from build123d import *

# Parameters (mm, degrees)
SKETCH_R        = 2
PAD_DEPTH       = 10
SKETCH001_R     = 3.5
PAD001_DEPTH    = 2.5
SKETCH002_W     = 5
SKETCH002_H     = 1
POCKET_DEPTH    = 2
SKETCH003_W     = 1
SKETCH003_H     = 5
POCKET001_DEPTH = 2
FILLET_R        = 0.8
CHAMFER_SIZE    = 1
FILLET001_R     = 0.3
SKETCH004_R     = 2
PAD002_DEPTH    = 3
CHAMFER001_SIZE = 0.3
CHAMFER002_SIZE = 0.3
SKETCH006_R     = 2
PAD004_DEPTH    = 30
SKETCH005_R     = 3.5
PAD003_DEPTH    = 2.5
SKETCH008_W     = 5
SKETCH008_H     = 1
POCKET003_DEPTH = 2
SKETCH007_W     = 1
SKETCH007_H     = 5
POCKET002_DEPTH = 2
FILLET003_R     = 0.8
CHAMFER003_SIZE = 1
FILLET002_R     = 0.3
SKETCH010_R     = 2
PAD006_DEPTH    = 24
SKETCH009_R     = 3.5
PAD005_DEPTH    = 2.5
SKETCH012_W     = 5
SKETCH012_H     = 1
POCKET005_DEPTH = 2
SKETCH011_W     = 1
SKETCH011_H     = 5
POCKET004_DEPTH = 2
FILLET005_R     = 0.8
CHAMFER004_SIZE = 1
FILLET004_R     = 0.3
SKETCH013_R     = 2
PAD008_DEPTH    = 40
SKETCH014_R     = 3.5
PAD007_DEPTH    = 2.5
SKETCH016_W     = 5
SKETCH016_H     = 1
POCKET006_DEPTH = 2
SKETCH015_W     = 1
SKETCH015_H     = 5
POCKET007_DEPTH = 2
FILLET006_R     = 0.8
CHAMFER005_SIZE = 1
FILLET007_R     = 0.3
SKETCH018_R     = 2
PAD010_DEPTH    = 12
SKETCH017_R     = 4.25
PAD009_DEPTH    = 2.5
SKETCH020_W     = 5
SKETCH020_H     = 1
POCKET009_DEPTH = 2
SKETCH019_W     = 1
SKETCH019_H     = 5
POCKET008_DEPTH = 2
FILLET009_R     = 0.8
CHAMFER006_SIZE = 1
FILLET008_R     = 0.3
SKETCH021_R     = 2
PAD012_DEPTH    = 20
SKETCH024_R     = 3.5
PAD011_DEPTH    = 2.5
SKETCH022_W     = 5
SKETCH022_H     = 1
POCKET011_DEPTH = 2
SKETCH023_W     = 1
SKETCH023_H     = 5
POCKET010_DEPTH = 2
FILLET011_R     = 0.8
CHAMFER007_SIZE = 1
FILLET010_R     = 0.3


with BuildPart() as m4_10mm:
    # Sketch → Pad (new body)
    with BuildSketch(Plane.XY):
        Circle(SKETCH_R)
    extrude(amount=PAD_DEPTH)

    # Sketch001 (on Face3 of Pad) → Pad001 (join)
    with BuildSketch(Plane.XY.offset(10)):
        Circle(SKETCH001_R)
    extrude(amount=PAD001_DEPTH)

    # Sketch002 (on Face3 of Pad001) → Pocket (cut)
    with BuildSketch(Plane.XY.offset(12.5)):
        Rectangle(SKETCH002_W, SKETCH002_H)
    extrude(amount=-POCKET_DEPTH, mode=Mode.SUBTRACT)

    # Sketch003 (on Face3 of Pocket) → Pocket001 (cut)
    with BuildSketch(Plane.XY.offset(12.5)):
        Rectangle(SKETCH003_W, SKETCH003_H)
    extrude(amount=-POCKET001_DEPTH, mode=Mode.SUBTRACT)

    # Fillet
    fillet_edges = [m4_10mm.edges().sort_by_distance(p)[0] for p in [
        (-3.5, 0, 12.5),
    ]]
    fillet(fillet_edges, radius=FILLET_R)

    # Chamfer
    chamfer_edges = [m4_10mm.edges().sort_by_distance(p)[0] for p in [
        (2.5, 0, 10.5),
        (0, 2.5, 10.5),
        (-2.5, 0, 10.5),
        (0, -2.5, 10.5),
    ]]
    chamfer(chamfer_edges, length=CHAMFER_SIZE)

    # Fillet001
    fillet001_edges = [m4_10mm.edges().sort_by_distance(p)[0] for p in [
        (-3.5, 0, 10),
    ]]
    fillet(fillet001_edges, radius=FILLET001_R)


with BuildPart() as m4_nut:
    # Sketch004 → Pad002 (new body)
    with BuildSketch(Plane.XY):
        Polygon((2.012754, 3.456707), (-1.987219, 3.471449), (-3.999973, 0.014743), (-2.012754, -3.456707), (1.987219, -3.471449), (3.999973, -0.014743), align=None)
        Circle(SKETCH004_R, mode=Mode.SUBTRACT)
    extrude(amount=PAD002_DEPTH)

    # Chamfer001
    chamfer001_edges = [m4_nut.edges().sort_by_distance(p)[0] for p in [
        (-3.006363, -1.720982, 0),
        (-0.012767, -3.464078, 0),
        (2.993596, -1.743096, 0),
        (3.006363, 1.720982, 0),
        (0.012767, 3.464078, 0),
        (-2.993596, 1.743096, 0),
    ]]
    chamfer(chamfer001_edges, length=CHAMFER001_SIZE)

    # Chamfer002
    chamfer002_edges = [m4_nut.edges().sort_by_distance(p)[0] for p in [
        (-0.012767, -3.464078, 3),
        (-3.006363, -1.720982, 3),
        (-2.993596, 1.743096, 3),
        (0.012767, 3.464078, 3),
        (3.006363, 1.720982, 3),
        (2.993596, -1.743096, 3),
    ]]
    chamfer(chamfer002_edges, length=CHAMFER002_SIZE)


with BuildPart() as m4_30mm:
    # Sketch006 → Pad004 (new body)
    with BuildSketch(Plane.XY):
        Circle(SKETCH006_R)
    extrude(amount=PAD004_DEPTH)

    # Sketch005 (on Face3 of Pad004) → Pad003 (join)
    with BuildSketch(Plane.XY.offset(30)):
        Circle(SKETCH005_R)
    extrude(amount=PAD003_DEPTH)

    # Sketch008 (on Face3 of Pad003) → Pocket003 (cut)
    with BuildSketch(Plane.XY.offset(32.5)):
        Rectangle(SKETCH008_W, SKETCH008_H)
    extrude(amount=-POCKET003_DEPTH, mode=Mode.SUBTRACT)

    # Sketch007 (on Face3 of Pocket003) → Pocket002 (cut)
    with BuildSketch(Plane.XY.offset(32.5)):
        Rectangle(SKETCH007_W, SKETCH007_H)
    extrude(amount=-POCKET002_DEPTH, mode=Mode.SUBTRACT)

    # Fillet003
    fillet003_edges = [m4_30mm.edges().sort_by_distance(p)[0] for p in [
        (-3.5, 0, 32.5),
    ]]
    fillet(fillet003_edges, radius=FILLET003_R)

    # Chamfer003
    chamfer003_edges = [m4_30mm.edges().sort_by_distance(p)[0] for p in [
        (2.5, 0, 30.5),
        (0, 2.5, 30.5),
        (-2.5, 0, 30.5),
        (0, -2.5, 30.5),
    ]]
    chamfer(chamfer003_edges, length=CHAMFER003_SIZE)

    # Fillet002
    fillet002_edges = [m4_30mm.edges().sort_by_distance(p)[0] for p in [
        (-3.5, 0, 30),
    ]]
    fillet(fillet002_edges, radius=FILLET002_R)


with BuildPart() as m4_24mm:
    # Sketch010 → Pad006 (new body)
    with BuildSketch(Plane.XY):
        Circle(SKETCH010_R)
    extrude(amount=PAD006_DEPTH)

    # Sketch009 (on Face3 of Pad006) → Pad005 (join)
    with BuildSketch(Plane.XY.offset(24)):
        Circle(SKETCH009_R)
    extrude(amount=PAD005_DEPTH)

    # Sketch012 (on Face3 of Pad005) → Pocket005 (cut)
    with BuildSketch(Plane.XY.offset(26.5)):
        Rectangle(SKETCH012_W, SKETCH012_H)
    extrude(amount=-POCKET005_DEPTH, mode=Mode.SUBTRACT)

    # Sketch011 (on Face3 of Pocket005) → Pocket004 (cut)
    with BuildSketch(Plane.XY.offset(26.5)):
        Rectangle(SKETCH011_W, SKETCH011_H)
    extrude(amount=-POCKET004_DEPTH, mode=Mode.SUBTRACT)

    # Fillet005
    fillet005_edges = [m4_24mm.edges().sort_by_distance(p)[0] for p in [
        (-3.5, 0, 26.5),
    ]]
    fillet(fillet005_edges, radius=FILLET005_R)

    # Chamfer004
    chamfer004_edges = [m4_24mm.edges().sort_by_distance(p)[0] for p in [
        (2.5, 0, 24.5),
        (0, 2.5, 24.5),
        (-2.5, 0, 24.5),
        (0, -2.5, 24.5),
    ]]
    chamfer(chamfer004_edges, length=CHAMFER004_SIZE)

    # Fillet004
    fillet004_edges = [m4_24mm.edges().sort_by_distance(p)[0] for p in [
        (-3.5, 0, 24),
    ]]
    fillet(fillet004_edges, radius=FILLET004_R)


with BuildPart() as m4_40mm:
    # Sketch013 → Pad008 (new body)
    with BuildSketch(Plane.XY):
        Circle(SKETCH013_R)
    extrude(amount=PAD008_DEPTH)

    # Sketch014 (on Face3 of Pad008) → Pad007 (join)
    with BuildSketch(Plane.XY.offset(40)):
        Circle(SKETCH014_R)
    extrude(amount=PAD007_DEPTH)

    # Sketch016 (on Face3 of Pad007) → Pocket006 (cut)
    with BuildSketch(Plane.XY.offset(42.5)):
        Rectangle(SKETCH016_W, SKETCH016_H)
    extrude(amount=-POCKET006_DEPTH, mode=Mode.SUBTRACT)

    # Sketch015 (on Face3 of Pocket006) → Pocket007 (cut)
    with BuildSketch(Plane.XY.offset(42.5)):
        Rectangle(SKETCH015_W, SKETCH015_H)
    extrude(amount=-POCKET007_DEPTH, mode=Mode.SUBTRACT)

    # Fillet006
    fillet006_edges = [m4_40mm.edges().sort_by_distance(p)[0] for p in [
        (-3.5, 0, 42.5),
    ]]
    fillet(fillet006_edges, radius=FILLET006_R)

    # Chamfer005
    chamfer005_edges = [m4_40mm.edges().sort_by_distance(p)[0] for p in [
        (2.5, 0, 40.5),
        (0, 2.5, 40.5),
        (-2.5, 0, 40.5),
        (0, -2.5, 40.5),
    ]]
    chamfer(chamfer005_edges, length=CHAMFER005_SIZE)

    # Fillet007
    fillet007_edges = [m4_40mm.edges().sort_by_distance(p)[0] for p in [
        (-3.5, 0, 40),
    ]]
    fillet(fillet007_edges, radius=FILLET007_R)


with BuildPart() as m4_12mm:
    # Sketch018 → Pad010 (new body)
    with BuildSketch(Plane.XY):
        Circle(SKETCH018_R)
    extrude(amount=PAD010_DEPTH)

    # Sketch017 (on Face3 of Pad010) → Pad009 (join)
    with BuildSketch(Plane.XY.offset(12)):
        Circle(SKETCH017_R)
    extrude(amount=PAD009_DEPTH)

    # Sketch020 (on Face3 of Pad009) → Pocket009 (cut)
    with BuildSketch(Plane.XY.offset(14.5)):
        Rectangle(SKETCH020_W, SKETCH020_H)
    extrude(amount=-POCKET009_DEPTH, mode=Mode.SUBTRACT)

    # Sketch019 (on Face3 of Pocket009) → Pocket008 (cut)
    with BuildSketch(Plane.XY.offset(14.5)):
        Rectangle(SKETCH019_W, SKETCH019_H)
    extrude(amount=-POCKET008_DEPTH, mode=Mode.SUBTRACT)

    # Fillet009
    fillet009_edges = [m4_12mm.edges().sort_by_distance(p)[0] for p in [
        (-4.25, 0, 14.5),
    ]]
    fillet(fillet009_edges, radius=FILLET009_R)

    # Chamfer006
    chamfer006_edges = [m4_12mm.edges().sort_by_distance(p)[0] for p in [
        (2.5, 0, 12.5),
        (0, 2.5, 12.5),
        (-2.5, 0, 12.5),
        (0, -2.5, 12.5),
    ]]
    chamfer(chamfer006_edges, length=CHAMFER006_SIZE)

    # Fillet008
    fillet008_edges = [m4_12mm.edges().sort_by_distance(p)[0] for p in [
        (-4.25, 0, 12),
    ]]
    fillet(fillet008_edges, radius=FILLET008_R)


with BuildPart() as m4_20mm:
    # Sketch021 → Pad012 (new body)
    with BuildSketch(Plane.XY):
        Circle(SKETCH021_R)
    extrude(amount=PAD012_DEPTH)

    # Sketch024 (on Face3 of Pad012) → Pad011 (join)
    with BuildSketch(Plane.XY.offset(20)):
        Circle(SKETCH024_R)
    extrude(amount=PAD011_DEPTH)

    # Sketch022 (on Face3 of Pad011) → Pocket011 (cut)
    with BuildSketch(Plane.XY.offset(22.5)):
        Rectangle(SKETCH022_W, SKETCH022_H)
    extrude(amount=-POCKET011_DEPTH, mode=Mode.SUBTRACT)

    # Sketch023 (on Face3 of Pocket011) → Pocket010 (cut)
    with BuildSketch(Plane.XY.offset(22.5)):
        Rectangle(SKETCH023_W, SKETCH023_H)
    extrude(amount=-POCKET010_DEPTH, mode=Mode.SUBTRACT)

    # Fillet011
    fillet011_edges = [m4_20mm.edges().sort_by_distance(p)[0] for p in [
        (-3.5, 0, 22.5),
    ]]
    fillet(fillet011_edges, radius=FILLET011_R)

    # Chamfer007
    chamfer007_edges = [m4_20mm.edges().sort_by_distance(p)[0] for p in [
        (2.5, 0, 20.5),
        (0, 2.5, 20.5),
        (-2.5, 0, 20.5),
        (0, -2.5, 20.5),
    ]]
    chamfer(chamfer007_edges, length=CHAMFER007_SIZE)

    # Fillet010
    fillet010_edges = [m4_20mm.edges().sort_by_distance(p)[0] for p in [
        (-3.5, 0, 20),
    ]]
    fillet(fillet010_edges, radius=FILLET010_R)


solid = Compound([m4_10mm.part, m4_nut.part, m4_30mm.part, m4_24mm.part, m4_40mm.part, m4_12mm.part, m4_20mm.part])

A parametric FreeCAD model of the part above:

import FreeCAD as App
import Part
import Sketcher
Q = App.Units.Quantity


def edges_at(feature, points):
    """Names of the edges that pass closest to the given points."""
    edges = feature.Shape.Edges
    near = lambda p: min(range(len(edges)), key=lambda i: edges[i].distToShape(Part.Vertex(*p))[0])
    return sorted({f"Edge{near(p) + 1}" for p in points})

doc = App.newDocument("Part")
body = doc.addObject("PartDesign::Body", "Body")

sketch1 = doc.addObject("Sketcher::SketchObject", "Sketch")
body.addObject(sketch1)
sketch1.AttachmentSupport = (doc.XY_Plane, [""])
sketch1.MapMode = "FlatFace"
sketch1.addGeometry(Part.Circle(App.Vector(0, 0, 0), App.Vector(0, 0, 1), 2), False)
sketch1.addConstraint(Sketcher.Constraint("Coincident", 0, 3, -1, 1))
sketch1.addConstraint(Sketcher.Constraint("Diameter", 0, Q("4 mm")))
pad1 = doc.addObject("PartDesign::Pad", "Pad")
body.addObject(pad1)
pad1.Profile = sketch1
pad1.Length = 10

sketch2 = doc.addObject("Sketcher::SketchObject", "Sketch001")
body.addObject(sketch2)
sketch2.AttachmentSupport = (doc.XY_Plane, [""])
sketch2.MapMode = "FlatFace"
sketch2.AttachmentOffset = App.Placement(App.Vector(0, 0, 10), App.Rotation())
sketch2.addGeometry(Part.Circle(App.Vector(0, 0, 0), App.Vector(0, 0, 1), 3.5), False)
sketch2.addConstraint(Sketcher.Constraint("Coincident", 0, 3, -1, 1))
sketch2.addConstraint(Sketcher.Constraint("Diameter", 0, Q("7 mm")))
pad2 = doc.addObject("PartDesign::Pad", "Pad001")
body.addObject(pad2)
pad2.Profile = sketch2
pad2.Length = 2.5

sketch3 = doc.addObject("Sketcher::SketchObject", "Sketch002")
body.addObject(sketch3)
sketch3.AttachmentSupport = (doc.XY_Plane, [""])
sketch3.MapMode = "FlatFace"
sketch3.AttachmentOffset = App.Placement(App.Vector(0, 0, 12.5), App.Rotation())
sketch3.addGeometry(Part.LineSegment(App.Vector(-2.5, 0.5, 0), App.Vector(-2.5, -0.5, 0)), False)
sketch3.addGeometry(Part.LineSegment(App.Vector(-2.5, -0.5, 0), App.Vector(2.5, -0.5, 0)), False)
sketch3.addGeometry(Part.LineSegment(App.Vector(2.5, -0.5, 0), App.Vector(2.5, 0.5, 0)), False)
sketch3.addGeometry(Part.LineSegment(App.Vector(2.5, 0.5, 0), App.Vector(-2.5, 0.5, 0)), False)
sketch3.addConstraint(Sketcher.Constraint("Coincident", 0, 2, 1, 1))
sketch3.addConstraint(Sketcher.Constraint("Coincident", 1, 2, 2, 1))
sketch3.addConstraint(Sketcher.Constraint("Coincident", 2, 2, 3, 1))
sketch3.addConstraint(Sketcher.Constraint("Coincident", 3, 2, 0, 1))
sketch3.addConstraint(Sketcher.Constraint("Vertical", 0))
sketch3.addConstraint(Sketcher.Constraint("Horizontal", 1))
sketch3.addConstraint(Sketcher.Constraint("Vertical", 2))
sketch3.addConstraint(Sketcher.Constraint("Horizontal", 3))
sketch3.addConstraint(Sketcher.Constraint("Symmetric", 0, 2, 2, 2, -1, 1))
sketch3.addConstraint(Sketcher.Constraint("DistanceX", 1, 1, 1, 2, Q("5 mm")))
sketch3.addConstraint(Sketcher.Constraint("DistanceY", 0, 2, 0, 1, Q("1 mm")))
pocket1 = doc.addObject("PartDesign::Pocket", "Pocket")
body.addObject(pocket1)
pocket1.Profile = sketch3
pocket1.Length = 2

sketch4 = doc.addObject("Sketcher::SketchObject", "Sketch003")
body.addObject(sketch4)
sketch4.AttachmentSupport = (doc.XY_Plane, [""])
sketch4.MapMode = "FlatFace"
sketch4.AttachmentOffset = App.Placement(App.Vector(0, 0, 12.5), App.Rotation())
sketch4.addGeometry(Part.LineSegment(App.Vector(-0.5, 2.5, 0), App.Vector(-0.5, -2.5, 0)), False)
sketch4.addGeometry(Part.LineSegment(App.Vector(-0.5, -2.5, 0), App.Vector(0.5, -2.5, 0)), False)
sketch4.addGeometry(Part.LineSegment(App.Vector(0.5, -2.5, 0), App.Vector(0.5, 2.5, 0)), False)
sketch4.addGeometry(Part.LineSegment(App.Vector(0.5, 2.5, 0), App.Vector(-0.5, 2.5, 0)), False)
sketch4.addConstraint(Sketcher.Constraint("Coincident", 0, 2, 1, 1))
sketch4.addConstraint(Sketcher.Constraint("Coincident", 1, 2, 2, 1))
sketch4.addConstraint(Sketcher.Constraint("Coincident", 2, 2, 3, 1))
sketch4.addConstraint(Sketcher.Constraint("Coincident", 3, 2, 0, 1))
sketch4.addConstraint(Sketcher.Constraint("Vertical", 0))
sketch4.addConstraint(Sketcher.Constraint("Horizontal", 1))
sketch4.addConstraint(Sketcher.Constraint("Vertical", 2))
sketch4.addConstraint(Sketcher.Constraint("Horizontal", 3))
sketch4.addConstraint(Sketcher.Constraint("Symmetric", 0, 2, 2, 2, -1, 1))
sketch4.addConstraint(Sketcher.Constraint("DistanceX", 1, 1, 1, 2, Q("1 mm")))
sketch4.addConstraint(Sketcher.Constraint("DistanceY", 0, 2, 0, 1, Q("5 mm")))
pocket2 = doc.addObject("PartDesign::Pocket", "Pocket001")
body.addObject(pocket2)
pocket2.Profile = sketch4
pocket2.Length = 2
doc.recompute()

fillet = doc.addObject("PartDesign::Fillet", "Fillet")
body.addObject(fillet)
fillet.Base = (pocket2, edges_at(pocket2, [(-3.5, 0, 12.5)]))
fillet.Radius = 0.8
doc.recompute()

chamfer = doc.addObject("PartDesign::Chamfer", "Chamfer")
body.addObject(chamfer)
chamfer.Base = (fillet, edges_at(fillet, [
    (2.5, 0, 10.5),
    (0, 2.5, 10.5),
    (-2.5, 0, 10.5),
    (0, -2.5, 10.5),
]))
chamfer.Size = 1
doc.recompute()

fillet2 = doc.addObject("PartDesign::Fillet", "Fillet001")
body.addObject(fillet2)
fillet2.Base = (chamfer, edges_at(chamfer, [(-3.5, 0, 10)]))
fillet2.Radius = 0.3
body2 = doc.addObject("PartDesign::Body", "Body001")

sketch5 = doc.addObject("Sketcher::SketchObject", "Sketch004")
body2.addObject(sketch5)
sketch5.AttachmentSupport = (doc.getObject("XY_Plane001"), [""])
sketch5.MapMode = "FlatFace"
sketch5.addGeometry(Part.LineSegment(App.Vector(2, 3.5, 0), App.Vector(-2, 3.5, 0)), False)
sketch5.addGeometry(Part.LineSegment(App.Vector(-2, 3.5, 0), App.Vector(-4, 0, 0)), False)
sketch5.addGeometry(Part.LineSegment(App.Vector(-4, 0, 0), App.Vector(-2, -3.5, 0)), False)
sketch5.addGeometry(Part.LineSegment(App.Vector(-2, -3.5, 0), App.Vector(2, -3.5, 0)), False)
sketch5.addGeometry(Part.LineSegment(App.Vector(2, -3.5, 0), App.Vector(4, 0, 0)), False)
sketch5.addGeometry(Part.LineSegment(App.Vector(4, 0, 0), App.Vector(2, 3.5, 0)), False)
sketch5.addGeometry(Part.Circle(App.Vector(0, 0, 0), App.Vector(0, 0, 1), 2), False)
sketch5.addConstraint(Sketcher.Constraint("Coincident", 0, 2, 1, 1))
sketch5.addConstraint(Sketcher.Constraint("Coincident", 1, 2, 2, 1))
sketch5.addConstraint(Sketcher.Constraint("Coincident", 2, 2, 3, 1))
sketch5.addConstraint(Sketcher.Constraint("Coincident", 3, 2, 4, 1))
sketch5.addConstraint(Sketcher.Constraint("Coincident", 4, 2, 5, 1))
sketch5.addConstraint(Sketcher.Constraint("Coincident", 5, 2, 0, 1))
sketch5.addConstraint(Sketcher.Constraint("Coincident", 6, 3, -1, 1))
sketch5.addConstraint(Sketcher.Constraint("Symmetric", 0, 2, 3, 2, -1, 1))
sketch5.addConstraint(Sketcher.Constraint("Symmetric", 1, 2, 4, 2, -1, 1))
sketch5.addConstraint(Sketcher.Constraint("Symmetric", 2, 2, 5, 2, -1, 1))
sketch5.addConstraint(Sketcher.Constraint("Equal", 0, 1))
sketch5.addConstraint(Sketcher.Constraint("Equal", 1, 2))
sketch5.addConstraint(Sketcher.Constraint("Diameter", 6, Q("4 mm")))
sketch5.addConstraint(Sketcher.Constraint("Distance", 0, Q("4 mm")))
sketch5.addConstraint(Sketcher.Constraint("DistanceX", 0, 2, -1, 1, Q("1.987219 mm")))
sketch5.addConstraint(Sketcher.Constraint("DistanceY", -1, 1, 0, 2, Q("3.471449 mm")))
sketch5.addConstraint(Sketcher.Constraint("DistanceX", 1, 2, 2, 2, Q("1.987219 mm")))
pad3 = doc.addObject("PartDesign::Pad", "Pad002")
body2.addObject(pad3)
pad3.Profile = sketch5
pad3.Length = 3
doc.recompute()

chamfer2 = doc.addObject("PartDesign::Chamfer", "Chamfer001")
body2.addObject(chamfer2)
chamfer2.Base = (pad3, edges_at(pad3, [
    (-3.006, -1.721, 0),
    (-0.013, -3.464, 0),
    (2.994, -1.743, 0),
    (3.006, 1.721, 0),
    (0.013, 3.464, 0),
    (-2.994, 1.743, 0),
]))
chamfer2.Size = 0.3
doc.recompute()

chamfer3 = doc.addObject("PartDesign::Chamfer", "Chamfer002")
body2.addObject(chamfer3)
chamfer3.Base = (chamfer2, edges_at(chamfer2, [
    (-0.013, -3.464, 3),
    (-3.006, -1.721, 3),
    (-2.994, 1.743, 3),
    (0.013, 3.464, 3),
    (3.006, 1.721, 3),
    (2.994, -1.743, 3),
]))
chamfer3.Size = 0.3
body3 = doc.addObject("PartDesign::Body", "Body002")

sketch6 = doc.addObject("Sketcher::SketchObject", "Sketch005")
body3.addObject(sketch6)
sketch6.AttachmentSupport = (doc.getObject("XY_Plane002"), [""])
sketch6.MapMode = "FlatFace"
sketch6.addGeometry(Part.Circle(App.Vector(0, 0, 0), App.Vector(0, 0, 1), 2), False)
sketch6.addConstraint(Sketcher.Constraint("Coincident", 0, 3, -1, 1))
sketch6.addConstraint(Sketcher.Constraint("Diameter", 0, Q("4 mm")))
pad4 = doc.addObject("PartDesign::Pad", "Pad003")
body3.addObject(pad4)
pad4.Profile = sketch6
pad4.Length = 30

sketch7 = doc.addObject("Sketcher::SketchObject", "Sketch006")
body3.addObject(sketch7)
sketch7.AttachmentSupport = (doc.getObject("XY_Plane002"), [""])
sketch7.MapMode = "FlatFace"
sketch7.AttachmentOffset = App.Placement(App.Vector(0, 0, 30), App.Rotation())
sketch7.addGeometry(Part.Circle(App.Vector(0, 0, 0), App.Vector(0, 0, 1), 3.5), False)
sketch7.addConstraint(Sketcher.Constraint("Coincident", 0, 3, -1, 1))
sketch7.addConstraint(Sketcher.Constraint("Diameter", 0, Q("7 mm")))
pad5 = doc.addObject("PartDesign::Pad", "Pad004")
body3.addObject(pad5)
pad5.Profile = sketch7
pad5.Length = 2.5

sketch8 = doc.addObject("Sketcher::SketchObject", "Sketch007")
body3.addObject(sketch8)
sketch8.AttachmentSupport = (doc.getObject("XY_Plane002"), [""])
sketch8.MapMode = "FlatFace"
sketch8.AttachmentOffset = App.Placement(App.Vector(0, 0, 32.5), App.Rotation())
sketch8.addGeometry(Part.LineSegment(App.Vector(-2.5, 0.5, 0), App.Vector(-2.5, -0.5, 0)), False)
sketch8.addGeometry(Part.LineSegment(App.Vector(-2.5, -0.5, 0), App.Vector(2.5, -0.5, 0)), False)
sketch8.addGeometry(Part.LineSegment(App.Vector(2.5, -0.5, 0), App.Vector(2.5, 0.5, 0)), False)
sketch8.addGeometry(Part.LineSegment(App.Vector(2.5, 0.5, 0), App.Vector(-2.5, 0.5, 0)), False)
sketch8.addConstraint(Sketcher.Constraint("Coincident", 0, 2, 1, 1))
sketch8.addConstraint(Sketcher.Constraint("Coincident", 1, 2, 2, 1))
sketch8.addConstraint(Sketcher.Constraint("Coincident", 2, 2, 3, 1))
sketch8.addConstraint(Sketcher.Constraint("Coincident", 3, 2, 0, 1))
sketch8.addConstraint(Sketcher.Constraint("Vertical", 0))
sketch8.addConstraint(Sketcher.Constraint("Horizontal", 1))
sketch8.addConstraint(Sketcher.Constraint("Vertical", 2))
sketch8.addConstraint(Sketcher.Constraint("Horizontal", 3))
sketch8.addConstraint(Sketcher.Constraint("Symmetric", 0, 2, 2, 2, -1, 1))
sketch8.addConstraint(Sketcher.Constraint("DistanceX", 1, 1, 1, 2, Q("5 mm")))
sketch8.addConstraint(Sketcher.Constraint("DistanceY", 0, 2, 0, 1, Q("1 mm")))
pocket3 = doc.addObject("PartDesign::Pocket", "Pocket002")
body3.addObject(pocket3)
pocket3.Profile = sketch8
pocket3.Length = 2

sketch9 = doc.addObject("Sketcher::SketchObject", "Sketch008")
body3.addObject(sketch9)
sketch9.AttachmentSupport = (doc.getObject("XY_Plane002"), [""])
sketch9.MapMode = "FlatFace"
sketch9.AttachmentOffset = App.Placement(App.Vector(0, 0, 32.5), App.Rotation())
sketch9.addGeometry(Part.LineSegment(App.Vector(-0.5, 2.5, 0), App.Vector(-0.5, -2.5, 0)), False)
sketch9.addGeometry(Part.LineSegment(App.Vector(-0.5, -2.5, 0), App.Vector(0.5, -2.5, 0)), False)
sketch9.addGeometry(Part.LineSegment(App.Vector(0.5, -2.5, 0), App.Vector(0.5, 2.5, 0)), False)
sketch9.addGeometry(Part.LineSegment(App.Vector(0.5, 2.5, 0), App.Vector(-0.5, 2.5, 0)), False)
sketch9.addConstraint(Sketcher.Constraint("Coincident", 0, 2, 1, 1))
sketch9.addConstraint(Sketcher.Constraint("Coincident", 1, 2, 2, 1))
sketch9.addConstraint(Sketcher.Constraint("Coincident", 2, 2, 3, 1))
sketch9.addConstraint(Sketcher.Constraint("Coincident", 3, 2, 0, 1))
sketch9.addConstraint(Sketcher.Constraint("Vertical", 0))
sketch9.addConstraint(Sketcher.Constraint("Horizontal", 1))
sketch9.addConstraint(Sketcher.Constraint("Vertical", 2))
sketch9.addConstraint(Sketcher.Constraint("Horizontal", 3))
sketch9.addConstraint(Sketcher.Constraint("Symmetric", 0, 2, 2, 2, -1, 1))
sketch9.addConstraint(Sketcher.Constraint("DistanceX", 1, 1, 1, 2, Q("1 mm")))
sketch9.addConstraint(Sketcher.Constraint("DistanceY", 0, 2, 0, 1, Q("5 mm")))
pocket4 = doc.addObject("PartDesign::Pocket", "Pocket003")
body3.addObject(pocket4)
pocket4.Profile = sketch9
pocket4.Length = 2
doc.recompute()

fillet3 = doc.addObject("PartDesign::Fillet", "Fillet002")
body3.addObject(fillet3)
fillet3.Base = (pocket4, edges_at(pocket4, [(-3.5, 0, 32.5)]))
fillet3.Radius = 0.8
doc.recompute()

chamfer4 = doc.addObject("PartDesign::Chamfer", "Chamfer003")
body3.addObject(chamfer4)
chamfer4.Base = (fillet3, edges_at(fillet3, [
    (2.5, 0, 30.5),
    (0, 2.5, 30.5),
    (-2.5, 0, 30.5),
    (0, -2.5, 30.5),
]))
chamfer4.Size = 1
doc.recompute()

fillet4 = doc.addObject("PartDesign::Fillet", "Fillet003")
body3.addObject(fillet4)
fillet4.Base = (chamfer4, edges_at(chamfer4, [(-3.5, 0, 30)]))
fillet4.Radius = 0.3
body4 = doc.addObject("PartDesign::Body", "Body003")

sketch10 = doc.addObject("Sketcher::SketchObject", "Sketch009")
body4.addObject(sketch10)
sketch10.AttachmentSupport = (doc.getObject("XY_Plane003"), [""])
sketch10.MapMode = "FlatFace"
sketch10.addGeometry(Part.Circle(App.Vector(0, 0, 0), App.Vector(0, 0, 1), 2), False)
sketch10.addConstraint(Sketcher.Constraint("Coincident", 0, 3, -1, 1))
sketch10.addConstraint(Sketcher.Constraint("Diameter", 0, Q("4 mm")))
pad6 = doc.addObject("PartDesign::Pad", "Pad005")
body4.addObject(pad6)
pad6.Profile = sketch10
pad6.Length = 24

sketch11 = doc.addObject("Sketcher::SketchObject", "Sketch010")
body4.addObject(sketch11)
sketch11.AttachmentSupport = (doc.getObject("XY_Plane003"), [""])
sketch11.MapMode = "FlatFace"
sketch11.AttachmentOffset = App.Placement(App.Vector(0, 0, 24), App.Rotation())
sketch11.addGeometry(Part.Circle(App.Vector(0, 0, 0), App.Vector(0, 0, 1), 3.5), False)
sketch11.addConstraint(Sketcher.Constraint("Coincident", 0, 3, -1, 1))
sketch11.addConstraint(Sketcher.Constraint("Diameter", 0, Q("7 mm")))
pad7 = doc.addObject("PartDesign::Pad", "Pad006")
body4.addObject(pad7)
pad7.Profile = sketch11
pad7.Length = 2.5

sketch12 = doc.addObject("Sketcher::SketchObject", "Sketch011")
body4.addObject(sketch12)
sketch12.AttachmentSupport = (doc.getObject("XY_Plane003"), [""])
sketch12.MapMode = "FlatFace"
sketch12.AttachmentOffset = App.Placement(App.Vector(0, 0, 26.5), App.Rotation())
sketch12.addGeometry(Part.LineSegment(App.Vector(-2.5, 0.5, 0), App.Vector(-2.5, -0.5, 0)), False)
sketch12.addGeometry(Part.LineSegment(App.Vector(-2.5, -0.5, 0), App.Vector(2.5, -0.5, 0)), False)
sketch12.addGeometry(Part.LineSegment(App.Vector(2.5, -0.5, 0), App.Vector(2.5, 0.5, 0)), False)
sketch12.addGeometry(Part.LineSegment(App.Vector(2.5, 0.5, 0), App.Vector(-2.5, 0.5, 0)), False)
sketch12.addConstraint(Sketcher.Constraint("Coincident", 0, 2, 1, 1))
sketch12.addConstraint(Sketcher.Constraint("Coincident", 1, 2, 2, 1))
sketch12.addConstraint(Sketcher.Constraint("Coincident", 2, 2, 3, 1))
sketch12.addConstraint(Sketcher.Constraint("Coincident", 3, 2, 0, 1))
sketch12.addConstraint(Sketcher.Constraint("Vertical", 0))
sketch12.addConstraint(Sketcher.Constraint("Horizontal", 1))
sketch12.addConstraint(Sketcher.Constraint("Vertical", 2))
sketch12.addConstraint(Sketcher.Constraint("Horizontal", 3))
sketch12.addConstraint(Sketcher.Constraint("Symmetric", 0, 2, 2, 2, -1, 1))
sketch12.addConstraint(Sketcher.Constraint("DistanceX", 1, 1, 1, 2, Q("5 mm")))
sketch12.addConstraint(Sketcher.Constraint("DistanceY", 0, 2, 0, 1, Q("1 mm")))
pocket5 = doc.addObject("PartDesign::Pocket", "Pocket004")
body4.addObject(pocket5)
pocket5.Profile = sketch12
pocket5.Length = 2

sketch13 = doc.addObject("Sketcher::SketchObject", "Sketch012")
body4.addObject(sketch13)
sketch13.AttachmentSupport = (doc.getObject("XY_Plane003"), [""])
sketch13.MapMode = "FlatFace"
sketch13.AttachmentOffset = App.Placement(App.Vector(0, 0, 26.5), App.Rotation())
sketch13.addGeometry(Part.LineSegment(App.Vector(-0.5, 2.5, 0), App.Vector(-0.5, -2.5, 0)), False)
sketch13.addGeometry(Part.LineSegment(App.Vector(-0.5, -2.5, 0), App.Vector(0.5, -2.5, 0)), False)
sketch13.addGeometry(Part.LineSegment(App.Vector(0.5, -2.5, 0), App.Vector(0.5, 2.5, 0)), False)
sketch13.addGeometry(Part.LineSegment(App.Vector(0.5, 2.5, 0), App.Vector(-0.5, 2.5, 0)), False)
sketch13.addConstraint(Sketcher.Constraint("Coincident", 0, 2, 1, 1))
sketch13.addConstraint(Sketcher.Constraint("Coincident", 1, 2, 2, 1))
sketch13.addConstraint(Sketcher.Constraint("Coincident", 2, 2, 3, 1))
sketch13.addConstraint(Sketcher.Constraint("Coincident", 3, 2, 0, 1))
sketch13.addConstraint(Sketcher.Constraint("Vertical", 0))
sketch13.addConstraint(Sketcher.Constraint("Horizontal", 1))
sketch13.addConstraint(Sketcher.Constraint("Vertical", 2))
sketch13.addConstraint(Sketcher.Constraint("Horizontal", 3))
sketch13.addConstraint(Sketcher.Constraint("Symmetric", 0, 2, 2, 2, -1, 1))
sketch13.addConstraint(Sketcher.Constraint("DistanceX", 1, 1, 1, 2, Q("1 mm")))
sketch13.addConstraint(Sketcher.Constraint("DistanceY", 0, 2, 0, 1, Q("5 mm")))
pocket6 = doc.addObject("PartDesign::Pocket", "Pocket005")
body4.addObject(pocket6)
pocket6.Profile = sketch13
pocket6.Length = 2
doc.recompute()

fillet5 = doc.addObject("PartDesign::Fillet", "Fillet004")
body4.addObject(fillet5)
fillet5.Base = (pocket6, edges_at(pocket6, [(-3.5, 0, 26.5)]))
fillet5.Radius = 0.8
doc.recompute()

chamfer5 = doc.addObject("PartDesign::Chamfer", "Chamfer004")
body4.addObject(chamfer5)
chamfer5.Base = (fillet5, edges_at(fillet5, [
    (2.5, 0, 24.5),
    (0, 2.5, 24.5),
    (-2.5, 0, 24.5),
    (0, -2.5, 24.5),
]))
chamfer5.Size = 1
doc.recompute()

fillet6 = doc.addObject("PartDesign::Fillet", "Fillet005")
body4.addObject(fillet6)
fillet6.Base = (chamfer5, edges_at(chamfer5, [(-3.5, 0, 24)]))
fillet6.Radius = 0.3
body5 = doc.addObject("PartDesign::Body", "Body004")

sketch14 = doc.addObject("Sketcher::SketchObject", "Sketch013")
body5.addObject(sketch14)
sketch14.AttachmentSupport = (doc.getObject("XY_Plane004"), [""])
sketch14.MapMode = "FlatFace"
sketch14.addGeometry(Part.Circle(App.Vector(0, 0, 0), App.Vector(0, 0, 1), 2), False)
sketch14.addConstraint(Sketcher.Constraint("Coincident", 0, 3, -1, 1))
sketch14.addConstraint(Sketcher.Constraint("Diameter", 0, Q("4 mm")))
pad8 = doc.addObject("PartDesign::Pad", "Pad007")
body5.addObject(pad8)
pad8.Profile = sketch14
pad8.Length = 40

sketch15 = doc.addObject("Sketcher::SketchObject", "Sketch014")
body5.addObject(sketch15)
sketch15.AttachmentSupport = (doc.getObject("XY_Plane004"), [""])
sketch15.MapMode = "FlatFace"
sketch15.AttachmentOffset = App.Placement(App.Vector(0, 0, 40), App.Rotation())
sketch15.addGeometry(Part.Circle(App.Vector(0, 0, 0), App.Vector(0, 0, 1), 3.5), False)
sketch15.addConstraint(Sketcher.Constraint("Coincident", 0, 3, -1, 1))
sketch15.addConstraint(Sketcher.Constraint("Diameter", 0, Q("7 mm")))
pad9 = doc.addObject("PartDesign::Pad", "Pad008")
body5.addObject(pad9)
pad9.Profile = sketch15
pad9.Length = 2.5

sketch16 = doc.addObject("Sketcher::SketchObject", "Sketch015")
body5.addObject(sketch16)
sketch16.AttachmentSupport = (doc.getObject("XY_Plane004"), [""])
sketch16.MapMode = "FlatFace"
sketch16.AttachmentOffset = App.Placement(App.Vector(0, 0, 42.5), App.Rotation())
sketch16.addGeometry(Part.LineSegment(App.Vector(-2.5, 0.5, 0), App.Vector(-2.5, -0.5, 0)), False)
sketch16.addGeometry(Part.LineSegment(App.Vector(-2.5, -0.5, 0), App.Vector(2.5, -0.5, 0)), False)
sketch16.addGeometry(Part.LineSegment(App.Vector(2.5, -0.5, 0), App.Vector(2.5, 0.5, 0)), False)
sketch16.addGeometry(Part.LineSegment(App.Vector(2.5, 0.5, 0), App.Vector(-2.5, 0.5, 0)), False)
sketch16.addConstraint(Sketcher.Constraint("Coincident", 0, 2, 1, 1))
sketch16.addConstraint(Sketcher.Constraint("Coincident", 1, 2, 2, 1))
sketch16.addConstraint(Sketcher.Constraint("Coincident", 2, 2, 3, 1))
sketch16.addConstraint(Sketcher.Constraint("Coincident", 3, 2, 0, 1))
sketch16.addConstraint(Sketcher.Constraint("Vertical", 0))
sketch16.addConstraint(Sketcher.Constraint("Horizontal", 1))
sketch16.addConstraint(Sketcher.Constraint("Vertical", 2))
sketch16.addConstraint(Sketcher.Constraint("Horizontal", 3))
sketch16.addConstraint(Sketcher.Constraint("Symmetric", 0, 2, 2, 2, -1, 1))
sketch16.addConstraint(Sketcher.Constraint("DistanceX", 1, 1, 1, 2, Q("5 mm")))
sketch16.addConstraint(Sketcher.Constraint("DistanceY", 0, 2, 0, 1, Q("1 mm")))
pocket7 = doc.addObject("PartDesign::Pocket", "Pocket006")
body5.addObject(pocket7)
pocket7.Profile = sketch16
pocket7.Length = 2

sketch17 = doc.addObject("Sketcher::SketchObject", "Sketch016")
body5.addObject(sketch17)
sketch17.AttachmentSupport = (doc.getObject("XY_Plane004"), [""])
sketch17.MapMode = "FlatFace"
sketch17.AttachmentOffset = App.Placement(App.Vector(0, 0, 42.5), App.Rotation())
sketch17.addGeometry(Part.LineSegment(App.Vector(-0.5, 2.5, 0), App.Vector(-0.5, -2.5, 0)), False)
sketch17.addGeometry(Part.LineSegment(App.Vector(-0.5, -2.5, 0), App.Vector(0.5, -2.5, 0)), False)
sketch17.addGeometry(Part.LineSegment(App.Vector(0.5, -2.5, 0), App.Vector(0.5, 2.5, 0)), False)
sketch17.addGeometry(Part.LineSegment(App.Vector(0.5, 2.5, 0), App.Vector(-0.5, 2.5, 0)), False)
sketch17.addConstraint(Sketcher.Constraint("Coincident", 0, 2, 1, 1))
sketch17.addConstraint(Sketcher.Constraint("Coincident", 1, 2, 2, 1))
sketch17.addConstraint(Sketcher.Constraint("Coincident", 2, 2, 3, 1))
sketch17.addConstraint(Sketcher.Constraint("Coincident", 3, 2, 0, 1))
sketch17.addConstraint(Sketcher.Constraint("Vertical", 0))
sketch17.addConstraint(Sketcher.Constraint("Horizontal", 1))
sketch17.addConstraint(Sketcher.Constraint("Vertical", 2))
sketch17.addConstraint(Sketcher.Constraint("Horizontal", 3))
sketch17.addConstraint(Sketcher.Constraint("Symmetric", 0, 2, 2, 2, -1, 1))
sketch17.addConstraint(Sketcher.Constraint("DistanceX", 1, 1, 1, 2, Q("1 mm")))
sketch17.addConstraint(Sketcher.Constraint("DistanceY", 0, 2, 0, 1, Q("5 mm")))
pocket8 = doc.addObject("PartDesign::Pocket", "Pocket007")
body5.addObject(pocket8)
pocket8.Profile = sketch17
pocket8.Length = 2
doc.recompute()

fillet7 = doc.addObject("PartDesign::Fillet", "Fillet006")
body5.addObject(fillet7)
fillet7.Base = (pocket8, edges_at(pocket8, [(-3.5, 0, 42.5)]))
fillet7.Radius = 0.8
doc.recompute()

chamfer6 = doc.addObject("PartDesign::Chamfer", "Chamfer005")
body5.addObject(chamfer6)
chamfer6.Base = (fillet7, edges_at(fillet7, [
    (2.5, 0, 40.5),
    (0, 2.5, 40.5),
    (-2.5, 0, 40.5),
    (0, -2.5, 40.5),
]))
chamfer6.Size = 1
doc.recompute()

fillet8 = doc.addObject("PartDesign::Fillet", "Fillet007")
body5.addObject(fillet8)
fillet8.Base = (chamfer6, edges_at(chamfer6, [(-3.5, 0, 40)]))
fillet8.Radius = 0.3
body6 = doc.addObject("PartDesign::Body", "Body005")

sketch18 = doc.addObject("Sketcher::SketchObject", "Sketch017")
body6.addObject(sketch18)
sketch18.AttachmentSupport = (doc.getObject("XY_Plane005"), [""])
sketch18.MapMode = "FlatFace"
sketch18.addGeometry(Part.Circle(App.Vector(0, 0, 0), App.Vector(0, 0, 1), 2), False)
sketch18.addConstraint(Sketcher.Constraint("Coincident", 0, 3, -1, 1))
sketch18.addConstraint(Sketcher.Constraint("Diameter", 0, Q("4 mm")))
pad10 = doc.addObject("PartDesign::Pad", "Pad009")
body6.addObject(pad10)
pad10.Profile = sketch18
pad10.Length = 12

sketch19 = doc.addObject("Sketcher::SketchObject", "Sketch018")
body6.addObject(sketch19)
sketch19.AttachmentSupport = (doc.getObject("XY_Plane005"), [""])
sketch19.MapMode = "FlatFace"
sketch19.AttachmentOffset = App.Placement(App.Vector(0, 0, 12), App.Rotation())
sketch19.addGeometry(Part.Circle(App.Vector(0, 0, 0), App.Vector(0, 0, 1), 4.2), False)
sketch19.addConstraint(Sketcher.Constraint("Coincident", 0, 3, -1, 1))
sketch19.addConstraint(Sketcher.Constraint("Diameter", 0, Q("8.5 mm")))
pad11 = doc.addObject("PartDesign::Pad", "Pad010")
body6.addObject(pad11)
pad11.Profile = sketch19
pad11.Length = 2.5

sketch20 = doc.addObject("Sketcher::SketchObject", "Sketch019")
body6.addObject(sketch20)
sketch20.AttachmentSupport = (doc.getObject("XY_Plane005"), [""])
sketch20.MapMode = "FlatFace"
sketch20.AttachmentOffset = App.Placement(App.Vector(0, 0, 14.5), App.Rotation())
sketch20.addGeometry(Part.LineSegment(App.Vector(-2.5, 0.5, 0), App.Vector(-2.5, -0.5, 0)), False)
sketch20.addGeometry(Part.LineSegment(App.Vector(-2.5, -0.5, 0), App.Vector(2.5, -0.5, 0)), False)
sketch20.addGeometry(Part.LineSegment(App.Vector(2.5, -0.5, 0), App.Vector(2.5, 0.5, 0)), False)
sketch20.addGeometry(Part.LineSegment(App.Vector(2.5, 0.5, 0), App.Vector(-2.5, 0.5, 0)), False)
sketch20.addConstraint(Sketcher.Constraint("Coincident", 0, 2, 1, 1))
sketch20.addConstraint(Sketcher.Constraint("Coincident", 1, 2, 2, 1))
sketch20.addConstraint(Sketcher.Constraint("Coincident", 2, 2, 3, 1))
sketch20.addConstraint(Sketcher.Constraint("Coincident", 3, 2, 0, 1))
sketch20.addConstraint(Sketcher.Constraint("Vertical", 0))
sketch20.addConstraint(Sketcher.Constraint("Horizontal", 1))
sketch20.addConstraint(Sketcher.Constraint("Vertical", 2))
sketch20.addConstraint(Sketcher.Constraint("Horizontal", 3))
sketch20.addConstraint(Sketcher.Constraint("Symmetric", 0, 2, 2, 2, -1, 1))
sketch20.addConstraint(Sketcher.Constraint("DistanceX", 1, 1, 1, 2, Q("5 mm")))
sketch20.addConstraint(Sketcher.Constraint("DistanceY", 0, 2, 0, 1, Q("1 mm")))
pocket9 = doc.addObject("PartDesign::Pocket", "Pocket008")
body6.addObject(pocket9)
pocket9.Profile = sketch20
pocket9.Length = 2

sketch21 = doc.addObject("Sketcher::SketchObject", "Sketch020")
body6.addObject(sketch21)
sketch21.AttachmentSupport = (doc.getObject("XY_Plane005"), [""])
sketch21.MapMode = "FlatFace"
sketch21.AttachmentOffset = App.Placement(App.Vector(0, 0, 14.5), App.Rotation())
sketch21.addGeometry(Part.LineSegment(App.Vector(-0.5, 2.5, 0), App.Vector(-0.5, -2.5, 0)), False)
sketch21.addGeometry(Part.LineSegment(App.Vector(-0.5, -2.5, 0), App.Vector(0.5, -2.5, 0)), False)
sketch21.addGeometry(Part.LineSegment(App.Vector(0.5, -2.5, 0), App.Vector(0.5, 2.5, 0)), False)
sketch21.addGeometry(Part.LineSegment(App.Vector(0.5, 2.5, 0), App.Vector(-0.5, 2.5, 0)), False)
sketch21.addConstraint(Sketcher.Constraint("Coincident", 0, 2, 1, 1))
sketch21.addConstraint(Sketcher.Constraint("Coincident", 1, 2, 2, 1))
sketch21.addConstraint(Sketcher.Constraint("Coincident", 2, 2, 3, 1))
sketch21.addConstraint(Sketcher.Constraint("Coincident", 3, 2, 0, 1))
sketch21.addConstraint(Sketcher.Constraint("Vertical", 0))
sketch21.addConstraint(Sketcher.Constraint("Horizontal", 1))
sketch21.addConstraint(Sketcher.Constraint("Vertical", 2))
sketch21.addConstraint(Sketcher.Constraint("Horizontal", 3))
sketch21.addConstraint(Sketcher.Constraint("Symmetric", 0, 2, 2, 2, -1, 1))
sketch21.addConstraint(Sketcher.Constraint("DistanceX", 1, 1, 1, 2, Q("1 mm")))
sketch21.addConstraint(Sketcher.Constraint("DistanceY", 0, 2, 0, 1, Q("5 mm")))
pocket10 = doc.addObject("PartDesign::Pocket", "Pocket009")
body6.addObject(pocket10)
pocket10.Profile = sketch21
pocket10.Length = 2
doc.recompute()

fillet9 = doc.addObject("PartDesign::Fillet", "Fillet008")
body6.addObject(fillet9)
fillet9.Base = (pocket10, edges_at(pocket10, [(-4.25, 0, 14.5)]))
fillet9.Radius = 0.8
doc.recompute()

chamfer7 = doc.addObject("PartDesign::Chamfer", "Chamfer006")
body6.addObject(chamfer7)
chamfer7.Base = (fillet9, edges_at(fillet9, [
    (2.5, 0, 12.5),
    (0, 2.5, 12.5),
    (-2.5, 0, 12.5),
    (0, -2.5, 12.5),
]))
chamfer7.Size = 1
doc.recompute()

fillet10 = doc.addObject("PartDesign::Fillet", "Fillet009")
body6.addObject(fillet10)
fillet10.Base = (chamfer7, edges_at(chamfer7, [(-4.25, 0, 12)]))
fillet10.Radius = 0.3
body7 = doc.addObject("PartDesign::Body", "Body006")

sketch22 = doc.addObject("Sketcher::SketchObject", "Sketch021")
body7.addObject(sketch22)
sketch22.AttachmentSupport = (doc.getObject("XY_Plane006"), [""])
sketch22.MapMode = "FlatFace"
sketch22.addGeometry(Part.Circle(App.Vector(0, 0, 0), App.Vector(0, 0, 1), 2), False)
sketch22.addConstraint(Sketcher.Constraint("Coincident", 0, 3, -1, 1))
sketch22.addConstraint(Sketcher.Constraint("Diameter", 0, Q("4 mm")))
pad12 = doc.addObject("PartDesign::Pad", "Pad011")
body7.addObject(pad12)
pad12.Profile = sketch22
pad12.Length = 20

sketch23 = doc.addObject("Sketcher::SketchObject", "Sketch022")
body7.addObject(sketch23)
sketch23.AttachmentSupport = (doc.getObject("XY_Plane006"), [""])
sketch23.MapMode = "FlatFace"
sketch23.AttachmentOffset = App.Placement(App.Vector(0, 0, 20), App.Rotation())
sketch23.addGeometry(Part.Circle(App.Vector(0, 0, 0), App.Vector(0, 0, 1), 3.5), False)
sketch23.addConstraint(Sketcher.Constraint("Coincident", 0, 3, -1, 1))
sketch23.addConstraint(Sketcher.Constraint("Diameter", 0, Q("7 mm")))
pad13 = doc.addObject("PartDesign::Pad", "Pad012")
body7.addObject(pad13)
pad13.Profile = sketch23
pad13.Length = 2.5

sketch24 = doc.addObject("Sketcher::SketchObject", "Sketch023")
body7.addObject(sketch24)
sketch24.AttachmentSupport = (doc.getObject("XY_Plane006"), [""])
sketch24.MapMode = "FlatFace"
sketch24.AttachmentOffset = App.Placement(App.Vector(0, 0, 22.5), App.Rotation())
sketch24.addGeometry(Part.LineSegment(App.Vector(-2.5, 0.5, 0), App.Vector(-2.5, -0.5, 0)), False)
sketch24.addGeometry(Part.LineSegment(App.Vector(-2.5, -0.5, 0), App.Vector(2.5, -0.5, 0)), False)
sketch24.addGeometry(Part.LineSegment(App.Vector(2.5, -0.5, 0), App.Vector(2.5, 0.5, 0)), False)
sketch24.addGeometry(Part.LineSegment(App.Vector(2.5, 0.5, 0), App.Vector(-2.5, 0.5, 0)), False)
sketch24.addConstraint(Sketcher.Constraint("Coincident", 0, 2, 1, 1))
sketch24.addConstraint(Sketcher.Constraint("Coincident", 1, 2, 2, 1))
sketch24.addConstraint(Sketcher.Constraint("Coincident", 2, 2, 3, 1))
sketch24.addConstraint(Sketcher.Constraint("Coincident", 3, 2, 0, 1))
sketch24.addConstraint(Sketcher.Constraint("Vertical", 0))
sketch24.addConstraint(Sketcher.Constraint("Horizontal", 1))
sketch24.addConstraint(Sketcher.Constraint("Vertical", 2))
sketch24.addConstraint(Sketcher.Constraint("Horizontal", 3))
sketch24.addConstraint(Sketcher.Constraint("Symmetric", 0, 2, 2, 2, -1, 1))
sketch24.addConstraint(Sketcher.Constraint("DistanceX", 1, 1, 1, 2, Q("5 mm")))
sketch24.addConstraint(Sketcher.Constraint("DistanceY", 0, 2, 0, 1, Q("1 mm")))
pocket11 = doc.addObject("PartDesign::Pocket", "Pocket010")
body7.addObject(pocket11)
pocket11.Profile = sketch24
pocket11.Length = 2

sketch25 = doc.addObject("Sketcher::SketchObject", "Sketch024")
body7.addObject(sketch25)
sketch25.AttachmentSupport = (doc.getObject("XY_Plane006"), [""])
sketch25.MapMode = "FlatFace"
sketch25.AttachmentOffset = App.Placement(App.Vector(0, 0, 22.5), App.Rotation())
sketch25.addGeometry(Part.LineSegment(App.Vector(-0.5, 2.5, 0), App.Vector(-0.5, -2.5, 0)), False)
sketch25.addGeometry(Part.LineSegment(App.Vector(-0.5, -2.5, 0), App.Vector(0.5, -2.5, 0)), False)
sketch25.addGeometry(Part.LineSegment(App.Vector(0.5, -2.5, 0), App.Vector(0.5, 2.5, 0)), False)
sketch25.addGeometry(Part.LineSegment(App.Vector(0.5, 2.5, 0), App.Vector(-0.5, 2.5, 0)), False)
sketch25.addConstraint(Sketcher.Constraint("Coincident", 0, 2, 1, 1))
sketch25.addConstraint(Sketcher.Constraint("Coincident", 1, 2, 2, 1))
sketch25.addConstraint(Sketcher.Constraint("Coincident", 2, 2, 3, 1))
sketch25.addConstraint(Sketcher.Constraint("Coincident", 3, 2, 0, 1))
sketch25.addConstraint(Sketcher.Constraint("Vertical", 0))
sketch25.addConstraint(Sketcher.Constraint("Horizontal", 1))
sketch25.addConstraint(Sketcher.Constraint("Vertical", 2))
sketch25.addConstraint(Sketcher.Constraint("Horizontal", 3))
sketch25.addConstraint(Sketcher.Constraint("Symmetric", 0, 2, 2, 2, -1, 1))
sketch25.addConstraint(Sketcher.Constraint("DistanceX", 1, 1, 1, 2, Q("1 mm")))
sketch25.addConstraint(Sketcher.Constraint("DistanceY", 0, 2, 0, 1, Q("5 mm")))
pocket12 = doc.addObject("PartDesign::Pocket", "Pocket011")
body7.addObject(pocket12)
pocket12.Profile = sketch25
pocket12.Length = 2
doc.recompute()

fillet11 = doc.addObject("PartDesign::Fillet", "Fillet010")
body7.addObject(fillet11)
fillet11.Base = (pocket12, edges_at(pocket12, [(-3.5, 0, 22.5)]))
fillet11.Radius = 0.8
doc.recompute()

chamfer8 = doc.addObject("PartDesign::Chamfer", "Chamfer007")
body7.addObject(chamfer8)
chamfer8.Base = (fillet11, edges_at(fillet11, [
    (2.5, 0, 20.5),
    (0, 2.5, 20.5),
    (-2.5, 0, 20.5),
    (0, -2.5, 20.5),
]))
chamfer8.Size = 1
doc.recompute()

fillet12 = doc.addObject("PartDesign::Fillet", "Fillet011")
body7.addObject(fillet12)
fillet12.Base = (chamfer8, edges_at(chamfer8, [(-3.5, 0, 20)]))
fillet12.Radius = 0.3

doc.recompute()
